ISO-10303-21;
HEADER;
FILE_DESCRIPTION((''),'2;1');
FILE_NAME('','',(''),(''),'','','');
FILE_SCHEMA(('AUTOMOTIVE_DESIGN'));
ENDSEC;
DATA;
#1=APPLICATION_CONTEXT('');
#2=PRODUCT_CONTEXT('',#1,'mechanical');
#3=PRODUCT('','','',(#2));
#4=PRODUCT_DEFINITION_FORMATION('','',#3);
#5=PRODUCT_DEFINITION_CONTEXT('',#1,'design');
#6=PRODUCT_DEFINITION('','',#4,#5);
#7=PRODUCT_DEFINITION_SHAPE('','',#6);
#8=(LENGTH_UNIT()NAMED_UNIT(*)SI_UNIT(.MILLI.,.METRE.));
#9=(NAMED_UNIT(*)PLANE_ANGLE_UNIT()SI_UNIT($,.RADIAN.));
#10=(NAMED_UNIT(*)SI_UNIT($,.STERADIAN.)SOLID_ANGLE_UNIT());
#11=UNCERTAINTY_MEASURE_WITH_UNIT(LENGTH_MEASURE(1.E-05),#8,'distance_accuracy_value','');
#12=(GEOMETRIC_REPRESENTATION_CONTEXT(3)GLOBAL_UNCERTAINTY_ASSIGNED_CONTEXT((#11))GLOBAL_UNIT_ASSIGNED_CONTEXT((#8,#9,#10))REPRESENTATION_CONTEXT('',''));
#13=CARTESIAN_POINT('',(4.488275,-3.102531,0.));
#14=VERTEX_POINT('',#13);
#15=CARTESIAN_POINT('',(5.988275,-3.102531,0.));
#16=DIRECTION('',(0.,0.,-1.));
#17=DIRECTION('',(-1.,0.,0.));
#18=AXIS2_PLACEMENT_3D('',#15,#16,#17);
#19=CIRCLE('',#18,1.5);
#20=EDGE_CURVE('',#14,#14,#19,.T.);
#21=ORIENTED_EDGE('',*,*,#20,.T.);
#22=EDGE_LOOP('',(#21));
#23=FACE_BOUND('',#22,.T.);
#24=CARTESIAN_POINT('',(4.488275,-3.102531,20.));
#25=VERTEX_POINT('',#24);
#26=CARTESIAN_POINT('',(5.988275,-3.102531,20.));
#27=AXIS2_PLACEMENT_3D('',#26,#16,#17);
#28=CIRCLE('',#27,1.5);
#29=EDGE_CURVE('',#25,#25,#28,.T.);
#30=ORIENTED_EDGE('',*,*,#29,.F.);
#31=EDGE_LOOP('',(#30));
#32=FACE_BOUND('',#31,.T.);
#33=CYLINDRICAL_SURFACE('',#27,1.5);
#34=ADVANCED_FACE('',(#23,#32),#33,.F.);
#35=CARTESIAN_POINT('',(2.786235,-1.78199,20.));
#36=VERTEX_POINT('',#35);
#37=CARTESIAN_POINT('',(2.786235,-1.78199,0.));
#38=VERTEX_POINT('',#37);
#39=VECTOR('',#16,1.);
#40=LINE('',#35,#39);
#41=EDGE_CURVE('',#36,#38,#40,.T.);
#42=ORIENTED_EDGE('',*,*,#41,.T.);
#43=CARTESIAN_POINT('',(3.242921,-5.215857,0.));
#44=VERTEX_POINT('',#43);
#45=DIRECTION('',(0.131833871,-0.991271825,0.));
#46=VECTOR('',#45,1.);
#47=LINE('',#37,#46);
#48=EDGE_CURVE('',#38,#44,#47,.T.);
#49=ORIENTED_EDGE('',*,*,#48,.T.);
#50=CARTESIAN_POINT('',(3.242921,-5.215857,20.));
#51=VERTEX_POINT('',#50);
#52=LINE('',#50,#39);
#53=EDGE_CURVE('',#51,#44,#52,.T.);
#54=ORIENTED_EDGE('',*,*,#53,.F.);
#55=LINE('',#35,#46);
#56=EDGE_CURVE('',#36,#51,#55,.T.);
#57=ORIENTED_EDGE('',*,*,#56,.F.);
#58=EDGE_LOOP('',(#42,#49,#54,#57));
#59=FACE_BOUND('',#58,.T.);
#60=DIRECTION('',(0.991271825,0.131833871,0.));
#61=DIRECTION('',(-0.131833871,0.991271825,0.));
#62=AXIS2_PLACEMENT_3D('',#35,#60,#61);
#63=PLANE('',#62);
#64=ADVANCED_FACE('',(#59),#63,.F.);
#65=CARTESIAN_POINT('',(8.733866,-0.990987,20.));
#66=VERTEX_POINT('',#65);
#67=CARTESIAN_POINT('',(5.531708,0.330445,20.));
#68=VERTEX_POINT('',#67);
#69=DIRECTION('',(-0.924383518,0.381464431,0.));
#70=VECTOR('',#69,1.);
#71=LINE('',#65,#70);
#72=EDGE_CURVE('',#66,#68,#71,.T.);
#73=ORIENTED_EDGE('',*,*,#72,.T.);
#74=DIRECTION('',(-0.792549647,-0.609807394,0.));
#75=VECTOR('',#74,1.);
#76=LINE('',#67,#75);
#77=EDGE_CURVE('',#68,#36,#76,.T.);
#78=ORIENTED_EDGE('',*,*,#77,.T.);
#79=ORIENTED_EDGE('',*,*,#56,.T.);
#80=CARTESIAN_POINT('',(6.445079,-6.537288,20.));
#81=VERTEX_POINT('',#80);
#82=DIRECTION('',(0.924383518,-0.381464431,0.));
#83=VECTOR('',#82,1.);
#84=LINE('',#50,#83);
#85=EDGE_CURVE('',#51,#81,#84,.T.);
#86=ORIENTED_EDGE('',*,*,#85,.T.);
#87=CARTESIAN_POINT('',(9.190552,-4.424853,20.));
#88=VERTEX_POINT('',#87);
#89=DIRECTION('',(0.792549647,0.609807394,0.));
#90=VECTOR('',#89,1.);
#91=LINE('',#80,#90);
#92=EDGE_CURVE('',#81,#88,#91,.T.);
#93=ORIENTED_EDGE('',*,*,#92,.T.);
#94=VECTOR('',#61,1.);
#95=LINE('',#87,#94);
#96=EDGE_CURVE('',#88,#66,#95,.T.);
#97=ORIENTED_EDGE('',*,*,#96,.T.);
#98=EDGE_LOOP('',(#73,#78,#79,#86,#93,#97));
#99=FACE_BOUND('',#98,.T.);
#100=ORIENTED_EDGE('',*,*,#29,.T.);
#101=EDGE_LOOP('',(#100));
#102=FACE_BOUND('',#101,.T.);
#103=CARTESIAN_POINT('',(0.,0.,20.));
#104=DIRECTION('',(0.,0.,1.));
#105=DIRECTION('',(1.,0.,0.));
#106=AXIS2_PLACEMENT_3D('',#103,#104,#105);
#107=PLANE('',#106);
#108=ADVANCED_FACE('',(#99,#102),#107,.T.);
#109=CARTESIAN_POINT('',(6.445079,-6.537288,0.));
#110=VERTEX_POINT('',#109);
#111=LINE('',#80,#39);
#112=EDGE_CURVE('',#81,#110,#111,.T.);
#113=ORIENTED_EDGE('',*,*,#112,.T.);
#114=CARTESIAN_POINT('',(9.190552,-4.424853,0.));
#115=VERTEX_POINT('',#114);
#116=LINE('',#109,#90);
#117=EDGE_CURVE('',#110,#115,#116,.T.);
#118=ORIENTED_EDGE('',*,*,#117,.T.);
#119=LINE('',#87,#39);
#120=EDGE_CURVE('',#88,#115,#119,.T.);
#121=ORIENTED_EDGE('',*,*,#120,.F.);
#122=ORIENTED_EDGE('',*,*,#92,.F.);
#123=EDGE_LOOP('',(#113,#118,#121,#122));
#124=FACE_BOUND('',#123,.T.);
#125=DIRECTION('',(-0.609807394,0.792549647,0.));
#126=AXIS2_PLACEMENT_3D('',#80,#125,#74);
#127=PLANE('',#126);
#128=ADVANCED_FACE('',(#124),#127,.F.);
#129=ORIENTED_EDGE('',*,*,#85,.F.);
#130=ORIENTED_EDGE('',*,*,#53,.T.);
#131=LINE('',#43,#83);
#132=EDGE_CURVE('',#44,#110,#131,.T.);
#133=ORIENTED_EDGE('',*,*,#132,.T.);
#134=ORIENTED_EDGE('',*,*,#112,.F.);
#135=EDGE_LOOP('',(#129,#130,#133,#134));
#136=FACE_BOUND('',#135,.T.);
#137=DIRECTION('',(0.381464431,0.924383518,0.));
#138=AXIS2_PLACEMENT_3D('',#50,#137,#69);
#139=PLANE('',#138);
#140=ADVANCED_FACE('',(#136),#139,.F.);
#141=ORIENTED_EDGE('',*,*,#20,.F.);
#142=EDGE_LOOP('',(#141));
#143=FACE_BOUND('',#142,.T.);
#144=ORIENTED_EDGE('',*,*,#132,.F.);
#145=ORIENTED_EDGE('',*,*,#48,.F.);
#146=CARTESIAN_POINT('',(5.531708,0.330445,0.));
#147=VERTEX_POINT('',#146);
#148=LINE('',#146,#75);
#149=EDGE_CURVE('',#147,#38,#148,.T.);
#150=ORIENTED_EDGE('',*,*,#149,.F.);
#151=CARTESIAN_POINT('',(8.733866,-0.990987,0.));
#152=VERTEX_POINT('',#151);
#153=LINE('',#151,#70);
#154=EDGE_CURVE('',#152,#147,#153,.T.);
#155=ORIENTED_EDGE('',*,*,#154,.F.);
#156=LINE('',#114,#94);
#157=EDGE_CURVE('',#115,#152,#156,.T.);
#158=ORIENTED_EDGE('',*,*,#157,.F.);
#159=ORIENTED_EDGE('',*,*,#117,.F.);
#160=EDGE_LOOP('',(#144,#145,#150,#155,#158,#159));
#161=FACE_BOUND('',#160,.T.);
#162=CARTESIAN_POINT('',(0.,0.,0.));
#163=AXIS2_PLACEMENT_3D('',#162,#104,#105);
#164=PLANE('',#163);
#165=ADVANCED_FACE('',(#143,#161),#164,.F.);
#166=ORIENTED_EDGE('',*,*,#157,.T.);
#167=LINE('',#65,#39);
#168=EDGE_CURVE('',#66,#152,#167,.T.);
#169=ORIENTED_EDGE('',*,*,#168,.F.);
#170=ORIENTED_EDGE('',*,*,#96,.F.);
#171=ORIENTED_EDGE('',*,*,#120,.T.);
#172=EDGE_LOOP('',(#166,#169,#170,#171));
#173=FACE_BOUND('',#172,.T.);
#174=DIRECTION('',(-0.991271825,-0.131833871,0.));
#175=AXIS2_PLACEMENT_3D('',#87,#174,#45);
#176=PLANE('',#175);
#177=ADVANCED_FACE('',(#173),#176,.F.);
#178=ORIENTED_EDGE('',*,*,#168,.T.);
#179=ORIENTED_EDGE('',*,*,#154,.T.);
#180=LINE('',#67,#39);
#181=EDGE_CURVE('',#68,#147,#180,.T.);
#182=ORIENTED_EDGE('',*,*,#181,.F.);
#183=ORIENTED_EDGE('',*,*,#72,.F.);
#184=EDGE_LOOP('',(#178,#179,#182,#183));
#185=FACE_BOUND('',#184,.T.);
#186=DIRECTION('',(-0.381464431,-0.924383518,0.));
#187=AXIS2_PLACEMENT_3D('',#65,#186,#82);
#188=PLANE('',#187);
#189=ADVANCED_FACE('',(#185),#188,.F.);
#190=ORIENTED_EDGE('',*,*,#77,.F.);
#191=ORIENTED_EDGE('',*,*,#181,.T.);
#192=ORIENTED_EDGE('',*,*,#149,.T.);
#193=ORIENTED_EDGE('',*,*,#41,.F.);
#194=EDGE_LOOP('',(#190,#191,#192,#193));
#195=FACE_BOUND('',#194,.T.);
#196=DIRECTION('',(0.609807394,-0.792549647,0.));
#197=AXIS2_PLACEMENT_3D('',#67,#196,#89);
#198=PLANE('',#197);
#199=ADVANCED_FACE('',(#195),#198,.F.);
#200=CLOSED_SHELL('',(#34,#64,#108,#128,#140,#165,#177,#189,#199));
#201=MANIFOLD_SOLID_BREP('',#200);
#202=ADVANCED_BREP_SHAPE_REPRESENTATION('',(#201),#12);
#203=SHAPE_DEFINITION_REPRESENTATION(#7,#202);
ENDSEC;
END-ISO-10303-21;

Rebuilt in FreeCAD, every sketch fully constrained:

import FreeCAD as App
import Part
import Sketcher

doc = App.newDocument("Part")
body = doc.addObject("PartDesign::Body", "Body")

# Sketch on XY plane
sketch1 = body.newObject("Sketcher::SketchObject", "Sketch")
sketch1.AttachmentSupport = (doc.getObject("XY_Plane"), [""])
sketch1.MapMode = "FlatFace"
sketch1.addGeometry([
    Part.LineSegment(App.Vector(8.7, -1, 0), App.Vector(5.5, 0.3, 0)),  # 0
    Part.LineSegment(App.Vector(5.5, 0.3, 0), App.Vector(2.8, -1.8, 0)),  # 1
    Part.LineSegment(App.Vector(2.8, -1.8, 0), App.Vector(3.2, -5.2, 0)),  # 2
    Part.LineSegment(App.Vector(3.2, -5.2, 0), App.Vector(6.4, -6.5, 0)),  # 3
    Part.LineSegment(App.Vector(6.4, -6.5, 0), App.Vector(9.2, -4.4, 0)),  # 4
    Part.LineSegment(App.Vector(9.2, -4.4, 0), App.Vector(8.7, -1, 0)),  # 5
], False)
sketch1.addConstraint([
    Sketcher.Constraint("Coincident", 0, 2, 1, 1),
    Sketcher.Constraint("Coincident", 1, 2, 2, 1),
    Sketcher.Constraint("Coincident", 2, 2, 3, 1),
    Sketcher.Constraint("Coincident", 3, 2, 4, 1),
    Sketcher.Constraint("Coincident", 4, 2, 5, 1),
    Sketcher.Constraint("Coincident", 5, 2, 0, 1),
    Sketcher.Constraint("Parallel", 0, 3),
    Sketcher.Constraint("Parallel", 1, 4),
    Sketcher.Constraint("Parallel", 2, 5),
    Sketcher.Constraint("Equal", 0, 1),
    Sketcher.Constraint("Equal", 1, 2),
    Sketcher.Constraint("Equal", 2, 3),
    Sketcher.Constraint("Distance", 0, 3.464102),
    Sketcher.Constraint("DistanceY", 2, 2, 0, 2, 5.546301),
    Sketcher.Constraint("DistanceY", 1, 2, -1, 1, 1.78199),
    Sketcher.Constraint("DistanceX", -1, 1, 2, 2, 3.242921),
    Sketcher.Constraint("DistanceX", -1, 1, 3, 2, 6.445079),
    Sketcher.Constraint("DistanceY", 3, 2, -1, 1, 6.537288),
])
pad1 = body.newObject("PartDesign::Pad", "Pad")
pad1.Profile = sketch1
pad1.Length = 20

# Sketch on XY plane
sketch2 = body.newObject("Sketcher::SketchObject", "Sketch001")
sketch2.AttachmentSupport = (doc.getObject("XY_Plane"), [""])
sketch2.MapMode = "FlatFace"
sketch2.addGeometry(Part.Circle(App.Vector(6, -3.1, 0), App.Vector(0, 0, 1), 1.5), False)
sketch2.addConstraint([
    Sketcher.Constraint("Diameter", 0, 3.0),
    Sketcher.Constraint("DistanceY", 0, 3, -1, 1, 3.102531),
    Sketcher.Constraint("DistanceX", -1, 1, 0, 3, 5.988275),
])
pocket1 = body.newObject("PartDesign::Pocket", "Pocket")
pocket1.Profile = sketch2
pocket1.Length = 20
pocket1.Reversed = True

doc.recompute()
